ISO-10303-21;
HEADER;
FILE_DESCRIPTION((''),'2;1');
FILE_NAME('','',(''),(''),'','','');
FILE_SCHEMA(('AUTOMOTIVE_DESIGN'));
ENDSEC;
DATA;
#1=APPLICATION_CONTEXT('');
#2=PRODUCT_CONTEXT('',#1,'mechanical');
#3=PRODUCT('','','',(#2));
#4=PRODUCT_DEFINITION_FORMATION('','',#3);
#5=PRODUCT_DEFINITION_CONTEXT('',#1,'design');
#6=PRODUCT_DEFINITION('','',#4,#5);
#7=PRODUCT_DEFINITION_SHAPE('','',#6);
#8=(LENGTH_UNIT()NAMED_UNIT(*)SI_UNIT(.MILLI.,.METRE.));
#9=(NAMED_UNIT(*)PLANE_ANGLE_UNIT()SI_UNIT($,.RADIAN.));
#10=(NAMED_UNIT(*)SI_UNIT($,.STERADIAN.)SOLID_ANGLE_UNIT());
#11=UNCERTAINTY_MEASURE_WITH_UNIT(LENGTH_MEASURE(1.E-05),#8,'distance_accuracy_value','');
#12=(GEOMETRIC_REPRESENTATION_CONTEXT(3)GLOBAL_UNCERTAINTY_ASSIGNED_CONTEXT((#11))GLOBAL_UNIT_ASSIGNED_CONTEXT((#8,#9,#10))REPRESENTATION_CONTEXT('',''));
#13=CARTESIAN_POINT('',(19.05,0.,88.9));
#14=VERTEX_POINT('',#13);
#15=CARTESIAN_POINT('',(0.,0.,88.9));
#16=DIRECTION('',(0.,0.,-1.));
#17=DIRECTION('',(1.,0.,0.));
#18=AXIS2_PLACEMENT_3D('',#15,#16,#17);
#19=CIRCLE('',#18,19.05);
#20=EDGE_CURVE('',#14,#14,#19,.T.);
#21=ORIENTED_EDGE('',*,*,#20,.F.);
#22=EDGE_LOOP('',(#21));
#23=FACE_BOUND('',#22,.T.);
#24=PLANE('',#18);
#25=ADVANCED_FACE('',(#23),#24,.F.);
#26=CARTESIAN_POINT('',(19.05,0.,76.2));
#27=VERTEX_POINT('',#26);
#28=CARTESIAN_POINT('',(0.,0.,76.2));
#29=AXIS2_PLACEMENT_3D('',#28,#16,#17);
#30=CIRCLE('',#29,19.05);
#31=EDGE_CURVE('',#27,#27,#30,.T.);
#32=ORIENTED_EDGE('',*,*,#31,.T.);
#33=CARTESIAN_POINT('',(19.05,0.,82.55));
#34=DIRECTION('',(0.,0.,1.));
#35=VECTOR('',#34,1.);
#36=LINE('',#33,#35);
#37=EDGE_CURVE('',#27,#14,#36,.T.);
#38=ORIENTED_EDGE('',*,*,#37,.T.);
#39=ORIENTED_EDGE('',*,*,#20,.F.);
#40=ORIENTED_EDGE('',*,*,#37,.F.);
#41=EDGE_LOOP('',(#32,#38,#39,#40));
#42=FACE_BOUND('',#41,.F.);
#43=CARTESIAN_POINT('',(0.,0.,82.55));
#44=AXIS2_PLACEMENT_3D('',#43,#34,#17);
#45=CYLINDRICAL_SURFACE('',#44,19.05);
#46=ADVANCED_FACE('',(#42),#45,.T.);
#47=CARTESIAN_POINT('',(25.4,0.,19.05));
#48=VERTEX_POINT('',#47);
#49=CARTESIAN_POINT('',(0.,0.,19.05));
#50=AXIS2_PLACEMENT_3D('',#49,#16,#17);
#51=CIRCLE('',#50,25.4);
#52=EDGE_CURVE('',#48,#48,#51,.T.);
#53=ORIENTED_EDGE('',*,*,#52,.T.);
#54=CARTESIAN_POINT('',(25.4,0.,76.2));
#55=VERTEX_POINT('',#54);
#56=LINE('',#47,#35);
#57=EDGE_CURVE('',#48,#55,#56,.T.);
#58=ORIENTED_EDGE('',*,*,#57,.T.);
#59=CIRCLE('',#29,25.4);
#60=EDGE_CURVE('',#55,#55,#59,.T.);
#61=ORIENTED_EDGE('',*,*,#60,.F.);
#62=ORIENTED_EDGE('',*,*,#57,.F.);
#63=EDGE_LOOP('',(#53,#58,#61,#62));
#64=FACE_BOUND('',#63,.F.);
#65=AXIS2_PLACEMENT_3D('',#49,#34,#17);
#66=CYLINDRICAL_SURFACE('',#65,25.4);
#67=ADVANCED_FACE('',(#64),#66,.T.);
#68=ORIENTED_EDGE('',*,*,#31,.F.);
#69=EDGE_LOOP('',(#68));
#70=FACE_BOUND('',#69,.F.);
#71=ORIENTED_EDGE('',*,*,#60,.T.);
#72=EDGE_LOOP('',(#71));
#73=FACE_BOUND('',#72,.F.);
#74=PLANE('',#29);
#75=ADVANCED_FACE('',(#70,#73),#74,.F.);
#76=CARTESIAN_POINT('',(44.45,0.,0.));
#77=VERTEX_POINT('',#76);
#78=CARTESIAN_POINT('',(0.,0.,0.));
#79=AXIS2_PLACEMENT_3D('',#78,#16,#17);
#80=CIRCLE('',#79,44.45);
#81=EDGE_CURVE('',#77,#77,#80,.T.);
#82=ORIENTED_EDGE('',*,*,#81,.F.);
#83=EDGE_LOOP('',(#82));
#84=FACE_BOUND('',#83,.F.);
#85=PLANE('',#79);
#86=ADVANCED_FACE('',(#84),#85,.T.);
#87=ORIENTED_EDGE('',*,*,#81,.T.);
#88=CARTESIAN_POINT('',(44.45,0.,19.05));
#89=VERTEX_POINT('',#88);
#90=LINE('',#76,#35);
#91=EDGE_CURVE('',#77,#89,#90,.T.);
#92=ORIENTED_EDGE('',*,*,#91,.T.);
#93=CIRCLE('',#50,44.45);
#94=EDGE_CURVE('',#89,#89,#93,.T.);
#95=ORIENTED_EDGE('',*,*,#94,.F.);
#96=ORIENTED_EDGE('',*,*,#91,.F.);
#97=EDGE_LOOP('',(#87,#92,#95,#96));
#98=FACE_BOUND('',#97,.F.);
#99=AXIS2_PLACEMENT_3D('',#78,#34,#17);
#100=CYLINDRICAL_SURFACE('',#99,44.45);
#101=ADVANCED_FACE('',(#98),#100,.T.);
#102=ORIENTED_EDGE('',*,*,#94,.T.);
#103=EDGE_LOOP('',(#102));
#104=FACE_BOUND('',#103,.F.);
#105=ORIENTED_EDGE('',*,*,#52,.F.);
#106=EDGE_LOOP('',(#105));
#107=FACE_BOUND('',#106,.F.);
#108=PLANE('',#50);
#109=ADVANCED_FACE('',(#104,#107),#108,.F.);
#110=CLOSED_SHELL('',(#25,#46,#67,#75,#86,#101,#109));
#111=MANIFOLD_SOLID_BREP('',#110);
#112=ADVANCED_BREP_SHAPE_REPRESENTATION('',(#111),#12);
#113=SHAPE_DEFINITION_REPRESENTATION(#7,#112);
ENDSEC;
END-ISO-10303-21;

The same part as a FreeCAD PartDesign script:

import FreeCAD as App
import Part
import Sketcher
Q = App.Units.Quantity

doc = App.newDocument("Part")
body = doc.addObject("PartDesign::Body", "Body")

sketch1 = doc.addObject("Sketcher::SketchObject", "Sketch")
body.addObject(sketch1)
sketch1.AttachmentSupport = (doc.XY_Plane, [""])
sketch1.MapMode = "FlatFace"
sketch1.addGeometry(Part.Circle(App.Vector(0, 0, 0), App.Vector(0, 0, 1), 10), False)
sketch1.addConstraint(Sketcher.Constraint("Coincident", 0, 3, -1, 1))
sketch1.addConstraint(Sketcher.Constraint("Diameter", 0, Q("0.75 in")))
pad1 = doc.addObject("PartDesign::Pad", "Pad")
body.addObject(pad1)
pad1.Profile = sketch1
pad1.Length = Q("3.5 in")

sketch2 = doc.addObject("Sketcher::SketchObject", "Sketch001")
body.addObject(sketch2)
sketch2.AttachmentSupport = (doc.XZ_Plane, [""])
sketch2.MapMode = "FlatFace"
sketch2.addGeometry(Part.LineSegment(App.Vector(0, 0, 0), App.Vector(44, 0, 0)), False)
sketch2.addGeometry(Part.LineSegment(App.Vector(44, 0, 0), App.Vector(44, 19, 0)), False)
sketch2.addGeometry(Part.LineSegment(App.Vector(44, 19, 0), App.Vector(25, 19, 0)), False)
sketch2.addGeometry(Part.LineSegment(App.Vector(25, 19, 0), App.Vector(25, 76, 0)), False)
sketch2.addGeometry(Part.LineSegment(App.Vector(25, 76, 0), App.Vector(19, 76, 0)), False)
sketch2.addGeometry(Part.LineSegment(App.Vector(19, 76, 0), App.Vector(19, 89, 0)), False)
sketch2.addGeometry(Part.LineSegment(App.Vector(19, 89, 0), App.Vector(0, 89, 0)), False)
sketch2.addGeometry(Part.LineSegment(App.Vector(0, 89, 0), App.Vector(0, 0, 0)), False)
sketch2.addConstraint(Sketcher.Constraint("Coincident", 0, 2, 1, 1))
sketch2.addConstraint(Sketcher.Constraint("Coincident", 1, 2, 2, 1))
sketch2.addConstraint(Sketcher.Constraint("Coincident", 2, 2, 3, 1))
sketch2.addConstraint(Sketcher.Constraint("Coincident", 3, 2, 4, 1))
sketch2.addConstraint(Sketcher.Constraint("Coincident", 4, 2, 5, 1))
sketch2.addConstraint(Sketcher.Constraint("Coincident", 5, 2, 6, 1))
sketch2.addConstraint(Sketcher.Constraint("Coincident", 6, 2, 7, 1))
sketch2.addConstraint(Sketcher.Constraint("Coincident", 7, 2, 0, 1))
sketch2.addConstraint(Sketcher.Constraint("Horizontal", 0))
sketch2.addConstraint(Sketcher.Constraint("Vertical", 1))
sketch2.addConstraint(Sketcher.Constraint("Horizontal", 2))
sketch2.addConstraint(Sketcher.Constraint("Vertical", 3))
sketch2.addConstraint(Sketcher.Constraint("Horizontal", 4))
sketch2.addConstraint(Sketcher.Constraint("Vertical", 5))
sketch2.addConstraint(Sketcher.Constraint("Horizontal", 6))
sketch2.addConstraint(Sketcher.Constraint("Vertical", 7))
sketch2.addConstraint(Sketcher.Constraint("Coincident", 7, 2, -1, 1))
sketch2.addConstraint(Sketcher.Constraint("Equal", 2, 6))
sketch2.addConstraint(Sketcher.Constraint("Equal", 6, 1))
sketch2.addConstraint(Sketcher.Constraint("DistanceY", 5, 1, 5, 2, Q("0.5 in")))
sketch2.addConstraint(Sketcher.Constraint("DistanceY", 7, 2, 7, 1, Q("3.5 in")))
sketch2.addConstraint(Sketcher.Constraint("DistanceX", -1, 1, 2, 2, Q("1 in")))
sketch2.addConstraint(Sketcher.Constraint("DistanceX", 0, 1, 0, 2, Q("1.75 in")))
revolution = doc.addObject("PartDesign::Revolution", "Revolution")
body.addObject(revolution)
revolution.Profile = sketch2
revolution.ReferenceAxis = (sketch2, ["V_Axis"])
revolution.Angle = 360

doc.recompute()
